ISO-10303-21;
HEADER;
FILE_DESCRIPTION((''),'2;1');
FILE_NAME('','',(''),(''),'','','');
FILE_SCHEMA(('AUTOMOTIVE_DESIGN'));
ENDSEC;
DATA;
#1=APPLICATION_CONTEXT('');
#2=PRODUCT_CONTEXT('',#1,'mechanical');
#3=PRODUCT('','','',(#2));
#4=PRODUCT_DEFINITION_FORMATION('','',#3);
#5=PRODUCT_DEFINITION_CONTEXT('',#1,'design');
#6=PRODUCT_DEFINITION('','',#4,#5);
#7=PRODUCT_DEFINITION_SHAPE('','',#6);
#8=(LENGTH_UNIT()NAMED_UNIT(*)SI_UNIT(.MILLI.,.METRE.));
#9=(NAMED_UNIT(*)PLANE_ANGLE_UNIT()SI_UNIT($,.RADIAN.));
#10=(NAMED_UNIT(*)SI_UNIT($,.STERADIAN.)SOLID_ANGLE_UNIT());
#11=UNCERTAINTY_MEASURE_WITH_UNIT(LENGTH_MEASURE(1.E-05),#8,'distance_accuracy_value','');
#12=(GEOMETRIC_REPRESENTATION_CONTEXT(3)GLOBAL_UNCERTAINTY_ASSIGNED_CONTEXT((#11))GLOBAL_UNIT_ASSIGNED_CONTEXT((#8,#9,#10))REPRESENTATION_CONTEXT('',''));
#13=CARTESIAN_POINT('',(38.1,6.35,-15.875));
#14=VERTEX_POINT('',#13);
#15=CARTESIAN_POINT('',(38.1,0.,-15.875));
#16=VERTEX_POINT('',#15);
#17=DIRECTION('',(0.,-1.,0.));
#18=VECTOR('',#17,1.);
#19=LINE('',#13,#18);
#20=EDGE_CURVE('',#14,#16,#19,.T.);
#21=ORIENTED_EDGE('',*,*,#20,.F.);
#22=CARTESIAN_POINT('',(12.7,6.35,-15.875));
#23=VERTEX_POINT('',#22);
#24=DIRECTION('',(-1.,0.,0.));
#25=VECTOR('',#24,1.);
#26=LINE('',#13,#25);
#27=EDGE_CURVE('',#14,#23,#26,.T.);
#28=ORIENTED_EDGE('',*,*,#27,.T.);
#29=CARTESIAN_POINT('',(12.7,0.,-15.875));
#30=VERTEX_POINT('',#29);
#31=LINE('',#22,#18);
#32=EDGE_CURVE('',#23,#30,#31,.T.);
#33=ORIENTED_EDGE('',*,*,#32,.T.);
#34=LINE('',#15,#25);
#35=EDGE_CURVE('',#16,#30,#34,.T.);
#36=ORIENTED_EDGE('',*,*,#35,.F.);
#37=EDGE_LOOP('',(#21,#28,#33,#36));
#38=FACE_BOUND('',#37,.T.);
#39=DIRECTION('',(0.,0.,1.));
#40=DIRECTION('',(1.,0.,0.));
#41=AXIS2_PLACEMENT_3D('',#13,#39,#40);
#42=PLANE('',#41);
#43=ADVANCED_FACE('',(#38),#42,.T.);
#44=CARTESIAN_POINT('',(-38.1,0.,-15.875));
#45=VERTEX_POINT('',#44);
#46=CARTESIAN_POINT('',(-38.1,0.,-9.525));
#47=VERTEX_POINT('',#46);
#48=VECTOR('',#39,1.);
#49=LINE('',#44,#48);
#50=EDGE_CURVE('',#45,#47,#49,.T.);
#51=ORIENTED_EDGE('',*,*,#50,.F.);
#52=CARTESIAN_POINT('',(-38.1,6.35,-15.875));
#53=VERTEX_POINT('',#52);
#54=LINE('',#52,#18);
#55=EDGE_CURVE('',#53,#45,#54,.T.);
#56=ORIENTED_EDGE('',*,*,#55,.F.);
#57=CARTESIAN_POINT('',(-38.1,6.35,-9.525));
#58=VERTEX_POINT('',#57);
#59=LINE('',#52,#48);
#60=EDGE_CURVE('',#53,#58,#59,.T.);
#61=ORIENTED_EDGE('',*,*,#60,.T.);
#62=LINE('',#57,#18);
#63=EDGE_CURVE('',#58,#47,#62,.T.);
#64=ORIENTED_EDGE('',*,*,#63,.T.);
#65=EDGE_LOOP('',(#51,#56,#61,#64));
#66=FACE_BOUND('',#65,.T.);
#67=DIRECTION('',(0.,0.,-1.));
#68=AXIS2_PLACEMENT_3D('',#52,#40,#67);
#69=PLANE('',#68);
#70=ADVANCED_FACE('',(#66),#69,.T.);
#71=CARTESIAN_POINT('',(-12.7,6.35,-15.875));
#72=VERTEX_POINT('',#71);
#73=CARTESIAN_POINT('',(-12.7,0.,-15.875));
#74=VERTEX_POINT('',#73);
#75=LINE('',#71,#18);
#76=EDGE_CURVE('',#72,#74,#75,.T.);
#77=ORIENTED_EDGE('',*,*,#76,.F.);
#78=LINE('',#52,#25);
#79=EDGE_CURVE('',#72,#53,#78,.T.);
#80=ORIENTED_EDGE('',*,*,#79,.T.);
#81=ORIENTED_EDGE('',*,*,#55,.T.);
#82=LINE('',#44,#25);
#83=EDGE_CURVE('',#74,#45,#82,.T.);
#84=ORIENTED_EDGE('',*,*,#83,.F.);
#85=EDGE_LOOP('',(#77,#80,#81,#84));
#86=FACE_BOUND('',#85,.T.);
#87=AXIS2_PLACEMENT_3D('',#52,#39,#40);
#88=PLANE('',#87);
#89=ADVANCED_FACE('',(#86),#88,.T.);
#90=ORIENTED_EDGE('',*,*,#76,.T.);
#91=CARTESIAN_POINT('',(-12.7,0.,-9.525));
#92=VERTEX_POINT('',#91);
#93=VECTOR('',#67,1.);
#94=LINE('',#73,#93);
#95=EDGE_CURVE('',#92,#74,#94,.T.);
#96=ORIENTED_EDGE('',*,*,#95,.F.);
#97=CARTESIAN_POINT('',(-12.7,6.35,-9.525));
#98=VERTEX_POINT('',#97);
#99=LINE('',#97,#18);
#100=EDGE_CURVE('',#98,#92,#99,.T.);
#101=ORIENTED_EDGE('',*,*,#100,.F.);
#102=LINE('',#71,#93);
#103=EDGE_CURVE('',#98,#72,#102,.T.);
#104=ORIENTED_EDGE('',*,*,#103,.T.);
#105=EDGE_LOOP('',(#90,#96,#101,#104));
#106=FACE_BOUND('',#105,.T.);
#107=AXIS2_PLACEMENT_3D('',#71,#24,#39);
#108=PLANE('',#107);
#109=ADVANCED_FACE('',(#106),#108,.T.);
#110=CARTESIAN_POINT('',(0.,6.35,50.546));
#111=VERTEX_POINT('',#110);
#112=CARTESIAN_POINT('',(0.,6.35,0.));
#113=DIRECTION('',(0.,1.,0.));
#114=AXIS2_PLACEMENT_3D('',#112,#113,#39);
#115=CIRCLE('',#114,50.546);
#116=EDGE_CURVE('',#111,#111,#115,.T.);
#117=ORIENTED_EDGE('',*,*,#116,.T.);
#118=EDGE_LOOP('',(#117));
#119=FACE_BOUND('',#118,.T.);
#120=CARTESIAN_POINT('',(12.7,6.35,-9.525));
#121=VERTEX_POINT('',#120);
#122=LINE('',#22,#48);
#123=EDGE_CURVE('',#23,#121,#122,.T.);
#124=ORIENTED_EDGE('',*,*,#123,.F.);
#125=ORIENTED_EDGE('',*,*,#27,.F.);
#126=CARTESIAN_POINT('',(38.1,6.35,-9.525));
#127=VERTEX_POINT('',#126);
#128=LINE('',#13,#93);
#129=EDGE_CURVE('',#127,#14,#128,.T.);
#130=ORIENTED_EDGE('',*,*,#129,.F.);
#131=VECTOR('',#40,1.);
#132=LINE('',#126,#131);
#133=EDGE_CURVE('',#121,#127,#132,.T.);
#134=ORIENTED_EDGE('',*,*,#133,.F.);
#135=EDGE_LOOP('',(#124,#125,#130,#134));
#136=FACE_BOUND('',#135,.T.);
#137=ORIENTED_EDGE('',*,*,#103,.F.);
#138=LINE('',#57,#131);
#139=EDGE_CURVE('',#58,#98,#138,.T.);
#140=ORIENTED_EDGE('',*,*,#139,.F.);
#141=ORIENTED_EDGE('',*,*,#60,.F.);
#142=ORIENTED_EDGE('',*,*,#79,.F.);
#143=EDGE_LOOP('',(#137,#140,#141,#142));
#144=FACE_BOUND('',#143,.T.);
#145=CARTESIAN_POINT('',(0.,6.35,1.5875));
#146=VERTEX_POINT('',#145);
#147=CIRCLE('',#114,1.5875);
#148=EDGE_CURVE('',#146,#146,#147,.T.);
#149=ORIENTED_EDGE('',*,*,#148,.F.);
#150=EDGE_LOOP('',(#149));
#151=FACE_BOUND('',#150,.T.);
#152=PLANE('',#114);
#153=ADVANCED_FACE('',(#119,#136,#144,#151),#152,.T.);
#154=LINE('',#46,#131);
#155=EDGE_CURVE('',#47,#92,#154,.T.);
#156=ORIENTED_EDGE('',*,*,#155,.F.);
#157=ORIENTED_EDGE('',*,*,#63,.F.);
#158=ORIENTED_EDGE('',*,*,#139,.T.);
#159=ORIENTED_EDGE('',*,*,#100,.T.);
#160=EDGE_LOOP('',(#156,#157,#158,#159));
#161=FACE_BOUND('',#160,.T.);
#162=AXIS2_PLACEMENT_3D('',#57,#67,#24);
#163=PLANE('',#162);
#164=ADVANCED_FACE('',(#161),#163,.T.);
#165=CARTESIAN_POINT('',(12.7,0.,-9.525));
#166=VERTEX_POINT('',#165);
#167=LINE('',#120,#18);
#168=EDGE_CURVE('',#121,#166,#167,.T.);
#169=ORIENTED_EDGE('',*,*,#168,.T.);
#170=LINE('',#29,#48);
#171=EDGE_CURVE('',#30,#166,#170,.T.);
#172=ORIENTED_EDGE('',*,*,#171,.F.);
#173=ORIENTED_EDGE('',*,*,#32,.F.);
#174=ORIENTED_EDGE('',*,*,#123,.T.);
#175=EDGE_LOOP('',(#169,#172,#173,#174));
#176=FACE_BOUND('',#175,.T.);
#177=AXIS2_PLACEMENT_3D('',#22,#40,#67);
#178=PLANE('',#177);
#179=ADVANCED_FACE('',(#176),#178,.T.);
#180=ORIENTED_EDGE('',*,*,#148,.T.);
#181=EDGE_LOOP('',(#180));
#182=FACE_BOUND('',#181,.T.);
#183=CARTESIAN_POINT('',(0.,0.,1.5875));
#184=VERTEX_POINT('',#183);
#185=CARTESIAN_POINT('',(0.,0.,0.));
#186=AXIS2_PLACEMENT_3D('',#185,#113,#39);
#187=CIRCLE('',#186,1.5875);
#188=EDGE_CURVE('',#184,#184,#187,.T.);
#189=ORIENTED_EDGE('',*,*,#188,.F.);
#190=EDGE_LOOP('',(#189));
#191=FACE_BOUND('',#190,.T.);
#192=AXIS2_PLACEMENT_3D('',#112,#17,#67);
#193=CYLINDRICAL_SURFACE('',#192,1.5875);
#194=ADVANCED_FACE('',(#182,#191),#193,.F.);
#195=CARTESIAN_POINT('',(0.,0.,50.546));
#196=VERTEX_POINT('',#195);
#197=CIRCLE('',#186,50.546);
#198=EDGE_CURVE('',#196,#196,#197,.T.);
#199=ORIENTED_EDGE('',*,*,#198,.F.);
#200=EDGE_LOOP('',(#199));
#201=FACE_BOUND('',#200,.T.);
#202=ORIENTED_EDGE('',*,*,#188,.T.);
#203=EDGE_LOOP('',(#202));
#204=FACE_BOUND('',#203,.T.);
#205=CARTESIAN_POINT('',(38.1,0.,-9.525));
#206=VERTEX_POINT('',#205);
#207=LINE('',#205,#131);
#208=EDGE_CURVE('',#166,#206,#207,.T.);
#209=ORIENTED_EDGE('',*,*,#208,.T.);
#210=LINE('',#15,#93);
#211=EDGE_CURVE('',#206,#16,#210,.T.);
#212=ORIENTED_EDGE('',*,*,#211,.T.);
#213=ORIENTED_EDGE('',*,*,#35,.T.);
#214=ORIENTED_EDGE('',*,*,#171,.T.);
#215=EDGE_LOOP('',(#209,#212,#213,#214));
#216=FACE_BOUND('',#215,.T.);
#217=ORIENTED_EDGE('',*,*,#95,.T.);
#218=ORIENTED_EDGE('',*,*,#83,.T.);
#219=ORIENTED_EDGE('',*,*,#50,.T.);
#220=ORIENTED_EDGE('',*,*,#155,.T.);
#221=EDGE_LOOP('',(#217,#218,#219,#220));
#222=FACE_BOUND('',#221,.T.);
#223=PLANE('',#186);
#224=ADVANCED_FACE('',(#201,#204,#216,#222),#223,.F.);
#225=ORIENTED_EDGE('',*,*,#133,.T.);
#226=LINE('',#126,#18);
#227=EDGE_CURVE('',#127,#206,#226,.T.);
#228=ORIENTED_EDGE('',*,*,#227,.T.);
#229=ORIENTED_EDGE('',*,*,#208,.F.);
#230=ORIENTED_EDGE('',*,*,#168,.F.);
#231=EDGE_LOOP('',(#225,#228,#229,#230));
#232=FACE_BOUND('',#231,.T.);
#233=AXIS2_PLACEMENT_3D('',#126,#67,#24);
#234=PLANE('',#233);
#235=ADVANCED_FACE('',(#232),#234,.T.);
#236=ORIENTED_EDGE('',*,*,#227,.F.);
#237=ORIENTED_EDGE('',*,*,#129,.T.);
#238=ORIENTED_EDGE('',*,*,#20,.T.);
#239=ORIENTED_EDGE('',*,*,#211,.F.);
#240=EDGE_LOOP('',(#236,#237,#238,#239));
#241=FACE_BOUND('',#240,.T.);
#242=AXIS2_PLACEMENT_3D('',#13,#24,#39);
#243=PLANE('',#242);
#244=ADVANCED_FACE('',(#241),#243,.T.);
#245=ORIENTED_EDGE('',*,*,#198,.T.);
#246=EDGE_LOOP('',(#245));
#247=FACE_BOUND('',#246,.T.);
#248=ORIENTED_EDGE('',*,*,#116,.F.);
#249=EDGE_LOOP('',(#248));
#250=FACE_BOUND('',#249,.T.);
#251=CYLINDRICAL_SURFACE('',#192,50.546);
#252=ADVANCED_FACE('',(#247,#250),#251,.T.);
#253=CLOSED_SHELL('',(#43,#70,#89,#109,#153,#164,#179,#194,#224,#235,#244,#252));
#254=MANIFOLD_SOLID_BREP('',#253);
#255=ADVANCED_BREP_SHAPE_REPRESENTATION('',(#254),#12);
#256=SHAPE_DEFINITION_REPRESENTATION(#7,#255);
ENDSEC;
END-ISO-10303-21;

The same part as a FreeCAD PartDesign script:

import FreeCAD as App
import Part
import Sketcher
Q = App.Units.Quantity


def add_polygon(sketch, points):
    """Adds a closed chain of lines whose ends are joined by coincident constraints."""
    first, n = sketch.GeometryCount, len(points)
    for a, b in zip(points, points[1:] + points[:1]):
        sketch.addGeometry(Part.LineSegment(App.Vector(*a, 0), App.Vector(*b, 0)), False)
    for i in range(n):
        sketch.addConstraint(Sketcher.Constraint("Coincident", first + i, 2, first + (i + 1) % n, 1))

doc = App.newDocument("Part")
params = doc.addObject("Spreadsheet::Sheet", "Params")
for row, (alias, value) in enumerate([
    ("sketch1_diameter", "3.98 in"),
    ("sketch1_width", "1 in"),
    ("sketch1_diameter2", "0.125 in"),
    ("sketch1_height", "0.25 in"),
    ("pad1_length", "0.25 in"),
], start=1):
    params.set(f"A{row}", alias)
    params.set(f"B{row}", "=" + value)
    params.setAlias(f"B{row}", alias)

body = doc.addObject("PartDesign::Body", "Body")

sketch1 = doc.addObject("Sketcher::SketchObject", "Sketch")
body.addObject(sketch1)
sketch1.AttachmentSupport = (doc.XZ_Plane, [""])
sketch1.MapMode = "FlatFace"
sketch1.addGeometry(Part.Circle(App.Vector(0, 0, 0), App.Vector(0, 0, 1), 50.546), False)
add_polygon(sketch1, [(-12.7, -9.525), (-38.1, -9.525), (-38.1, -15.875), (-12.7, -15.875)])
add_polygon(sketch1, [(38.1, -9.525), (12.7, -9.525), (12.7, -15.875), (38.1, -15.875)])
sketch1.addGeometry(Part.Circle(App.Vector(0, 0, 0), App.Vector(0, 0, 1), 1.5875), False)
sketch1.addConstraint([
    Sketcher.Constraint("Horizontal", 1),
    Sketcher.Constraint("Vertical", 2),
    Sketcher.Constraint("Horizontal", 3),
    Sketcher.Constraint("Vertical", 4),
    Sketcher.Constraint("Horizontal", 5),
    Sketcher.Constraint("Vertical", 6),
    Sketcher.Constraint("Horizontal", 7),
    Sketcher.Constraint("Vertical", 8),
    Sketcher.Constraint("Coincident", 0, 3, -1, 1),
    Sketcher.Constraint("Coincident", 9, 3, -1, 1),
    Sketcher.Constraint("Symmetric", 4, 2, 5, 2, -2),
    Sketcher.Constraint("Symmetric", 2, 2, 7, 2, -2),
    Sketcher.Constraint("Diameter", 0, Q("3.98 in")),
    Sketcher.Constraint("DistanceX", 1, 2, 1, 1, Q("1 in")),
    Sketcher.Constraint("Diameter", 9, Q("0.125 in")),
    Sketcher.Constraint("DistanceX", 4, 2, 5, 2, Q("1 in")),
    Sketcher.Constraint("DistanceY", 2, 2, 2, 1, Q("0.25 in")),
    Sketcher.Constraint("DistanceY", 1, 2, -1, 1, Q("0.375 in")),
])
sketch1.setExpression("Constraints[20]", "Params.sketch1_diameter")
sketch1.setExpression("Constraints[21]", "Params.sketch1_width")
sketch1.setExpression("Constraints[22]", "Params.sketch1_diameter2")
sketch1.setExpression("Constraints[24]", "Params.sketch1_height")
pad1 = doc.addObject("PartDesign::Pad", "Pad")
body.addObject(pad1)
pad1.Profile = sketch1
pad1.setExpression("Length", "Params.pad1_length")
pad1.Reversed = True

doc.recompute()
